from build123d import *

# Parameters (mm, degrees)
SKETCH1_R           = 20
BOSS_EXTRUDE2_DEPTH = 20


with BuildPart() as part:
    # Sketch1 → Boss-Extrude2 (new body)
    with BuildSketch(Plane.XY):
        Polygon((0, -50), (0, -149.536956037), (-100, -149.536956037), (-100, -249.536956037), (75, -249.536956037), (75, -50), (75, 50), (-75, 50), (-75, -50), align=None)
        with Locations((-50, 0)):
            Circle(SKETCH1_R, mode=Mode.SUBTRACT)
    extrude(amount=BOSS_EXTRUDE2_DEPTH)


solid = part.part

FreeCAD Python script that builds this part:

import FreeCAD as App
import Part
import Sketcher

V = App.Vector


def add_polygon(sketch, points):
    """Adds a closed chain of lines whose ends are joined by coincident constraints."""
    first, n = sketch.GeometryCount, len(points)
    for a, b in zip(points, points[1:] + points[:1]):
        sketch.addGeometry(Part.LineSegment(App.Vector(*a, 0), App.Vector(*b, 0)), False)
    for i in range(n):
        sketch.addConstraint(Sketcher.Constraint("Coincident", first + i, 2, first + (i + 1) % n, 1))

doc = App.newDocument("Part")
body = doc.addObject("PartDesign::Body", "Body")

# Sketch on XY plane
sketch1 = body.newObject("Sketcher::SketchObject", "Sketch")
sketch1.AttachmentSupport = (doc.getObject("XY_Plane"), [""])
sketch1.MapMode = "FlatFace"
add_polygon(sketch1, [(0, -50), (0, -150), (-100, -150), (-100, -250), (75, -250), (75, 50), (-75, 50), (-75, -50)])  # lines 0-7
sketch1.addGeometry(Part.Circle(V(-50, 0, 0), V(0, 0, 1), 20), False)  # 8
sketch1.addConstraint(Sketcher.Constraint("Vertical", 0))
sketch1.addConstraint(Sketcher.Constraint("Horizontal", 1))
sketch1.addConstraint(Sketcher.Constraint("Vertical", 2))
sketch1.addConstraint(Sketcher.Constraint("Horizontal", 3))
sketch1.addConstraint(Sketcher.Constraint("Vertical", 4))
sketch1.addConstraint(Sketcher.Constraint("Horizontal", 5))
sketch1.addConstraint(Sketcher.Constraint("Vertical", 6))
sketch1.addConstraint(Sketcher.Constraint("Horizontal", 7))
sketch1.addConstraint(Sketcher.Constraint("Symmetric", 4, 2, 6, 2, -1, 1))
sketch1.addConstraint(Sketcher.Constraint("PointOnObject", 8, 3, -1))
sketch1.addConstraint(Sketcher.Constraint("PointOnObject", 0, 2, -2))
sketch1.addConstraint(Sketcher.Constraint("Equal", 1, 2))
sketch1.addConstraint(Sketcher.Constraint("Equal", 2, 6))
sketch1.addConstraint(Sketcher.Constraint("Diameter", 8, 40.0))
sketch1.addConstraint(Sketcher.Constraint("DistanceX", 1, 2, 1, 1, 100.0))
sketch1.addConstraint(Sketcher.Constraint("DistanceX", 3, 1, 3, 2, 175.0))
sketch1.addConstraint(Sketcher.Constraint("DistanceX", 8, 3, -1, 1, 50.0))
sketch1.addConstraint(Sketcher.Constraint("DistanceY", 0, 2, 0, 1, 99.536956))
pad1 = body.newObject("PartDesign::Pad", "Pad")
pad1.Profile = sketch1
pad1.Length = 20

doc.recompute()
